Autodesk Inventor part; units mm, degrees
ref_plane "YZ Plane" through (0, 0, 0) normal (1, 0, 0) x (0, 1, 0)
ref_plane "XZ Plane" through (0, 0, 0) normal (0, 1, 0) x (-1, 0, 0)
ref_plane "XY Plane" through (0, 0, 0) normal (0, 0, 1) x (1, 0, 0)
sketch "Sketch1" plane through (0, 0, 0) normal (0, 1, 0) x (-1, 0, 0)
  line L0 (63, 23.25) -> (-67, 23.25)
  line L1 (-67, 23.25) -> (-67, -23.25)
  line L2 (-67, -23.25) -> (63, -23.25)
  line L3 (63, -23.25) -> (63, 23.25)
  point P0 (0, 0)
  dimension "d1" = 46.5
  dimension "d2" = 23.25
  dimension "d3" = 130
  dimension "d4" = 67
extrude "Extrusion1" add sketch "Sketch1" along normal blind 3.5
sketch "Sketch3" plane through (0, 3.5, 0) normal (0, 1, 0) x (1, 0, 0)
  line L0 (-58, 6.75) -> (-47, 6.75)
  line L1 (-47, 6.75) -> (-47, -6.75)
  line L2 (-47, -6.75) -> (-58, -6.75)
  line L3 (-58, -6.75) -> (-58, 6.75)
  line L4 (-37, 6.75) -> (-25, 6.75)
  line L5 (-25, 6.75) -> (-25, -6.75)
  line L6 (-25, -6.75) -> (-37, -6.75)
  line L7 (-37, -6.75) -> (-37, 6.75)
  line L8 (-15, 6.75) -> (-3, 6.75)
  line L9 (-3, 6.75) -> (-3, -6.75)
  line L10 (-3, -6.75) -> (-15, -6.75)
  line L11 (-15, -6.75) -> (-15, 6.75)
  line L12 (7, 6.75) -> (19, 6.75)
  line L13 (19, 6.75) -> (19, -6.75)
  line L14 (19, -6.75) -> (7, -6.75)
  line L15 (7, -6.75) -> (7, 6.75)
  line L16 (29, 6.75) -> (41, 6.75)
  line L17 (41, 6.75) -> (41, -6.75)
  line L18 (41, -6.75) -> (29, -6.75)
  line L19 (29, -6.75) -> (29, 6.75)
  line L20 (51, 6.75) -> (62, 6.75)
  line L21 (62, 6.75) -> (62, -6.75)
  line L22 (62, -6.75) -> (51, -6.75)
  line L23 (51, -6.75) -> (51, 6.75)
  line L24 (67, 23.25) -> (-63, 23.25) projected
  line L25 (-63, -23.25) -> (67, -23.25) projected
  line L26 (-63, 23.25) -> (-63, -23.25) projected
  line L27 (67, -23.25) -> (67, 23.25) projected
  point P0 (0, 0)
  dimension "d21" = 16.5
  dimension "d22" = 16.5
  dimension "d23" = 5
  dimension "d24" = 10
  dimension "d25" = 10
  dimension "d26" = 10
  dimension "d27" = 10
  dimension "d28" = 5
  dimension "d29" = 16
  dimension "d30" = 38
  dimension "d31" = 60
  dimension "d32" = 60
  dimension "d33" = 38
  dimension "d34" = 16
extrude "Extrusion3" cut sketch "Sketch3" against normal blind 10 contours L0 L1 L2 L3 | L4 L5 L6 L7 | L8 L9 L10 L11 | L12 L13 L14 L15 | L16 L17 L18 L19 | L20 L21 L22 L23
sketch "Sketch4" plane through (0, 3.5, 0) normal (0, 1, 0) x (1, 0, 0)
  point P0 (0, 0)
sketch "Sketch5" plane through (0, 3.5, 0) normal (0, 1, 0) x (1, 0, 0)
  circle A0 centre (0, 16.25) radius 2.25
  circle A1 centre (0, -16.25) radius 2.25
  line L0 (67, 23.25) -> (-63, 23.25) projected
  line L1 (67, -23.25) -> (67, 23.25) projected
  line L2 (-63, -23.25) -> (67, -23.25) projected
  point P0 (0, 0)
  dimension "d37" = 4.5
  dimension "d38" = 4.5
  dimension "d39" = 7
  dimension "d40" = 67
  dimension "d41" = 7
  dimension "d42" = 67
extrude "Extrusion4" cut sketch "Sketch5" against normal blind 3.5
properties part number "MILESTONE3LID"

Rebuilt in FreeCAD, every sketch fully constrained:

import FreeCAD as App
import Part
import Sketcher

doc = App.newDocument("Part")
body = doc.addObject("PartDesign::Body", "Body")

# Sketch on XZ plane
sketch1 = doc.addObject("Sketcher::SketchObject", "Sketch")
body.addObject(sketch1)
sketch1.AttachmentSupport = (doc.XZ_Plane, [""])
sketch1.MapMode = "FlatFace"
sketch1.addGeometry([
    Part.LineSegment(App.Vector(-63, -23.25, 0), App.Vector(-63, 23.25, 0)),
    Part.LineSegment(App.Vector(-63, 23.25, 0), App.Vector(67, 23.25, 0)),
    Part.LineSegment(App.Vector(67, 23.25, 0), App.Vector(67, -23.25, 0)),
    Part.LineSegment(App.Vector(67, -23.25, 0), App.Vector(-63, -23.25, 0)),
], False)
sketch1.addConstraint([
    Sketcher.Constraint("Coincident", 0, 2, 1, 1),
    Sketcher.Constraint("Coincident", 1, 2, 2, 1),
    Sketcher.Constraint("Coincident", 2, 2, 3, 1),
    Sketcher.Constraint("Coincident", 3, 2, 0, 1),
    Sketcher.Constraint("Vertical", 0),
    Sketcher.Constraint("Horizontal", 1),
    Sketcher.Constraint("Vertical", 2),
    Sketcher.Constraint("Horizontal", 3),
    Sketcher.Constraint("DistanceX", 1, 1, 1, 2, 130.0),
    Sketcher.Constraint("DistanceY", 0, 1, 0, 2, 46.5),
    Sketcher.Constraint("DistanceX", -1, 1, 1, 2, 67.0),
    Sketcher.Constraint("DistanceY", -1, 1, 0, 2, 23.25),
])
pad1 = doc.addObject("PartDesign::Pad", "Pad")
body.addObject(pad1)
pad1.Profile = sketch1
pad1.Length = 3.5
pad1.Reversed = True

# Sketch on XZ plane
sketch2 = doc.addObject("Sketcher::SketchObject", "Sketch001")
body.addObject(sketch2)
sketch2.AttachmentSupport = (doc.XZ_Plane, [""])
sketch2.MapMode = "FlatFace"
sketch2.AttachmentOffset = App.Placement(App.Vector(0, 0, -3.5), App.Rotation())
sketch2.addGeometry([
    Part.LineSegment(App.Vector(-47, -6.75, 0), App.Vector(-58, -6.75, 0)),  # 0
    Part.LineSegment(App.Vector(-58, -6.75, 0), App.Vector(-58, 6.75, 0)),  # 1
    Part.LineSegment(App.Vector(-58, 6.75, 0), App.Vector(-47, 6.75, 0)),  # 2
    Part.LineSegment(App.Vector(-47, 6.75, 0), App.Vector(-47, -6.75, 0)),  # 3
    Part.LineSegment(App.Vector(-25, -6.75, 0), App.Vector(-37, -6.75, 0)),  # 4
    Part.LineSegment(App.Vector(-37, -6.75, 0), App.Vector(-37, 6.75, 0)),  # 5
    Part.LineSegment(App.Vector(-37, 6.75, 0), App.Vector(-25, 6.75, 0)),  # 6
    Part.LineSegment(App.Vector(-25, 6.75, 0), App.Vector(-25, -6.75, 0)),  # 7
    Part.LineSegment(App.Vector(-3, -6.75, 0), App.Vector(-15, -6.75, 0)),  # 8
    Part.LineSegment(App.Vector(-15, -6.75, 0), App.Vector(-15, 6.75, 0)),  # 9
    Part.LineSegment(App.Vector(-15, 6.75, 0), App.Vector(-3, 6.75, 0)),  # 10
    Part.LineSegment(App.Vector(-3, 6.75, 0), App.Vector(-3, -6.75, 0)),  # 11
    Part.LineSegment(App.Vector(19, -6.75, 0), App.Vector(7, -6.75, 0)),  # 12
    Part.LineSegment(App.Vector(7, -6.75, 0), App.Vector(7, 6.75, 0)),  # 13
    Part.LineSegment(App.Vector(7, 6.75, 0), App.Vector(19, 6.75, 0)),  # 14
    Part.LineSegment(App.Vector(19, 6.75, 0), App.Vector(19, -6.75, 0)),  # 15
    Part.LineSegment(App.Vector(41, -6.75, 0), App.Vector(29, -6.75, 0)),  # 16
    Part.LineSegment(App.Vector(29, -6.75, 0), App.Vector(29, 6.75, 0)),  # 17
    Part.LineSegment(App.Vector(29, 6.75, 0), App.Vector(41, 6.75, 0)),  # 18
    Part.LineSegment(App.Vector(41, 6.75, 0), App.Vector(41, -6.75, 0)),  # 19
    Part.LineSegment(App.Vector(62, -6.75, 0), App.Vector(51, -6.75, 0)),  # 20
    Part.LineSegment(App.Vector(51, -6.75, 0), App.Vector(51, 6.75, 0)),  # 21
    Part.LineSegment(App.Vector(51, 6.75, 0), App.Vector(62, 6.75, 0)),  # 22
    Part.LineSegment(App.Vector(62, 6.75, 0), App.Vector(62, -6.75, 0)),  # 23
], False)
sketch2.addConstraint([
    Sketcher.Constraint("Coincident", 0, 2, 1, 1),
    Sketcher.Constraint("Coincident", 1, 2, 2, 1),
    Sketcher.Constraint("Coincident", 2, 2, 3, 1),
    Sketcher.Constraint("Coincident", 3, 2, 0, 1),
    Sketcher.Constraint("Coincident", 4, 2, 5, 1),
    Sketcher.Constraint("Coincident", 5, 2, 6, 1),
    Sketcher.Constraint("Coincident", 6, 2, 7, 1),
    Sketcher.Constraint("Coincident", 7, 2, 4, 1),
    Sketcher.Constraint("Coincident", 8, 2, 9, 1),
    Sketcher.Constraint("Coincident", 9, 2, 10, 1),
    Sketcher.Constraint("Coincident", 10, 2, 11, 1),
    Sketcher.Constraint("Coincident", 11, 2, 8, 1),
    Sketcher.Constraint("Coincident", 12, 2, 13, 1),
    Sketcher.Constraint("Coincident", 13, 2, 14, 1),
    Sketcher.Constraint("Coincident", 14, 2, 15, 1),
    Sketcher.Constraint("Coincident", 15, 2, 12, 1),
    Sketcher.Constraint("Coincident", 16, 2, 17, 1),
    Sketcher.Constraint("Coincident", 17, 2, 18, 1),
    Sketcher.Constraint("Coincident", 18, 2, 19, 1),
    Sketcher.Constraint("Coincident", 19, 2, 16, 1),
    Sketcher.Constraint("Coincident", 20, 2, 21, 1),
    Sketcher.Constraint("Coincident", 21, 2, 22, 1),
    Sketcher.Constraint("Coincident", 22, 2, 23, 1),
    Sketcher.Constraint("Coincident", 23, 2, 20, 1),
    Sketcher.Constraint("Horizontal", 0),
    Sketcher.Constraint("Vertical", 1),
    Sketcher.Constraint("Horizontal", 2),
    Sketcher.Constraint("Vertical", 3),
    Sketcher.Constraint("Horizontal", 4),
    Sketcher.Constraint("Vertical", 5),
    Sketcher.Constraint("Horizontal", 6),
    Sketcher.Constraint("Vertical", 7),
    Sketcher.Constraint("Horizontal", 8),
    Sketcher.Constraint("Vertical", 9),
    Sketcher.Constraint("Horizontal", 10),
    Sketcher.Constraint("Vertical", 11),
    Sketcher.Constraint("Horizontal", 12),
    Sketcher.Constraint("Vertical", 13),
    Sketcher.Constraint("Horizontal", 14),
    Sketcher.Constraint("Vertical", 15),
    Sketcher.Constraint("Horizontal", 16),
    Sketcher.Constraint("Vertical", 17),
    Sketcher.Constraint("Horizontal", 18),
    Sketcher.Constraint("Vertical", 19),
    Sketcher.Constraint("Horizontal", 20),
    Sketcher.Constraint("Vertical", 21),
    Sketcher.Constraint("Horizontal", 22),
    Sketcher.Constraint("Vertical", 23),
    Sketcher.Constraint("Horizontal", 3, 2, 4, 2),
    Sketcher.Constraint("Horizontal", 2, 2, 5, 2),
    Sketcher.Constraint("Horizontal", 7, 2, 8, 2),
    Sketcher.Constraint("Horizontal", 6, 2, 9, 2),
    Sketcher.Constraint("Horizontal", 11, 2, 12, 2),
    Sketcher.Constraint("Horizontal", 10, 2, 13, 2),
    Sketcher.Constraint("Horizontal", 15, 2, 16, 2),
    Sketcher.Constraint("Horizontal", 14, 2, 17, 2),
    Sketcher.Constraint("Horizontal", 19, 2, 20, 2),
    Sketcher.Constraint("Horizontal", 18, 2, 21, 2),
    Sketcher.Constraint("Equal", 6, 8),
    Sketcher.Constraint("Equal", 10, 12),
    Sketcher.Constraint("Equal", 14, 16),
    Sketcher.Constraint("Equal", 2, 20),
    Sketcher.Constraint("DistanceX", 3, 2, 4, 2, 10.0),
    Sketcher.Constraint("DistanceX", 7, 2, 8, 2, 10.0),
    Sketcher.Constraint("DistanceX", 11, 2, 12, 2, 10.0),
    Sketcher.Constraint("DistanceX", 15, 2, 16, 2, 10.0),
    Sketcher.Constraint("DistanceX", 19, 2, 20, 2, 10.0),
    Sketcher.Constraint("DistanceX", 0, 2, 0, 1, 11.0),
    Sketcher.Constraint("DistanceX", 4, 2, 4, 1, 12.0),
    Sketcher.Constraint("DistanceY", 1, 1, 1, 2, 13.5),
    Sketcher.Constraint("DistanceX", 0, 2, -1, 1, 58.0),
    Sketcher.Constraint("DistanceY", 0, 2, -1, 1, 6.75),
])
pocket1 = doc.addObject("PartDesign::Pocket", "Pocket")
body.addObject(pocket1)
pocket1.Profile = sketch2
pocket1.Length = 10
pocket1.Reversed = True

# Sketch on XZ plane
sketch3 = doc.addObject("Sketcher::SketchObject", "Sketch002")
body.addObject(sketch3)
sketch3.AttachmentSupport = (doc.XZ_Plane, [""])
sketch3.MapMode = "FlatFace"
sketch3.AttachmentOffset = App.Placement(App.Vector(0, 0, -3.5), App.Rotation())
sketch3.addGeometry([
    Part.Circle(App.Vector(0, -16.25, 0), App.Vector(0, 0, 1), 2.25),
    Part.Circle(App.Vector(0, 16.25, 0), App.Vector(0, 0, 1), 2.25),
], False)
sketch3.addConstraint([
    Sketcher.Constraint("Equal", 0, 1),
    Sketcher.Constraint("Symmetric", 0, 3, 1, 3, -1, 1),
    Sketcher.Constraint("PointOnObject", 0, 3, -2),
    Sketcher.Constraint("Diameter", 0, 4.5),
    Sketcher.Constraint("DistanceY", 0, 3, 1, 3, 32.5),
])
pocket2 = doc.addObject("PartDesign::Pocket", "Pocket001")
body.addObject(pocket2)
pocket2.Profile = sketch3
pocket2.Length = 3.5
pocket2.Reversed = True

doc.recompute()
